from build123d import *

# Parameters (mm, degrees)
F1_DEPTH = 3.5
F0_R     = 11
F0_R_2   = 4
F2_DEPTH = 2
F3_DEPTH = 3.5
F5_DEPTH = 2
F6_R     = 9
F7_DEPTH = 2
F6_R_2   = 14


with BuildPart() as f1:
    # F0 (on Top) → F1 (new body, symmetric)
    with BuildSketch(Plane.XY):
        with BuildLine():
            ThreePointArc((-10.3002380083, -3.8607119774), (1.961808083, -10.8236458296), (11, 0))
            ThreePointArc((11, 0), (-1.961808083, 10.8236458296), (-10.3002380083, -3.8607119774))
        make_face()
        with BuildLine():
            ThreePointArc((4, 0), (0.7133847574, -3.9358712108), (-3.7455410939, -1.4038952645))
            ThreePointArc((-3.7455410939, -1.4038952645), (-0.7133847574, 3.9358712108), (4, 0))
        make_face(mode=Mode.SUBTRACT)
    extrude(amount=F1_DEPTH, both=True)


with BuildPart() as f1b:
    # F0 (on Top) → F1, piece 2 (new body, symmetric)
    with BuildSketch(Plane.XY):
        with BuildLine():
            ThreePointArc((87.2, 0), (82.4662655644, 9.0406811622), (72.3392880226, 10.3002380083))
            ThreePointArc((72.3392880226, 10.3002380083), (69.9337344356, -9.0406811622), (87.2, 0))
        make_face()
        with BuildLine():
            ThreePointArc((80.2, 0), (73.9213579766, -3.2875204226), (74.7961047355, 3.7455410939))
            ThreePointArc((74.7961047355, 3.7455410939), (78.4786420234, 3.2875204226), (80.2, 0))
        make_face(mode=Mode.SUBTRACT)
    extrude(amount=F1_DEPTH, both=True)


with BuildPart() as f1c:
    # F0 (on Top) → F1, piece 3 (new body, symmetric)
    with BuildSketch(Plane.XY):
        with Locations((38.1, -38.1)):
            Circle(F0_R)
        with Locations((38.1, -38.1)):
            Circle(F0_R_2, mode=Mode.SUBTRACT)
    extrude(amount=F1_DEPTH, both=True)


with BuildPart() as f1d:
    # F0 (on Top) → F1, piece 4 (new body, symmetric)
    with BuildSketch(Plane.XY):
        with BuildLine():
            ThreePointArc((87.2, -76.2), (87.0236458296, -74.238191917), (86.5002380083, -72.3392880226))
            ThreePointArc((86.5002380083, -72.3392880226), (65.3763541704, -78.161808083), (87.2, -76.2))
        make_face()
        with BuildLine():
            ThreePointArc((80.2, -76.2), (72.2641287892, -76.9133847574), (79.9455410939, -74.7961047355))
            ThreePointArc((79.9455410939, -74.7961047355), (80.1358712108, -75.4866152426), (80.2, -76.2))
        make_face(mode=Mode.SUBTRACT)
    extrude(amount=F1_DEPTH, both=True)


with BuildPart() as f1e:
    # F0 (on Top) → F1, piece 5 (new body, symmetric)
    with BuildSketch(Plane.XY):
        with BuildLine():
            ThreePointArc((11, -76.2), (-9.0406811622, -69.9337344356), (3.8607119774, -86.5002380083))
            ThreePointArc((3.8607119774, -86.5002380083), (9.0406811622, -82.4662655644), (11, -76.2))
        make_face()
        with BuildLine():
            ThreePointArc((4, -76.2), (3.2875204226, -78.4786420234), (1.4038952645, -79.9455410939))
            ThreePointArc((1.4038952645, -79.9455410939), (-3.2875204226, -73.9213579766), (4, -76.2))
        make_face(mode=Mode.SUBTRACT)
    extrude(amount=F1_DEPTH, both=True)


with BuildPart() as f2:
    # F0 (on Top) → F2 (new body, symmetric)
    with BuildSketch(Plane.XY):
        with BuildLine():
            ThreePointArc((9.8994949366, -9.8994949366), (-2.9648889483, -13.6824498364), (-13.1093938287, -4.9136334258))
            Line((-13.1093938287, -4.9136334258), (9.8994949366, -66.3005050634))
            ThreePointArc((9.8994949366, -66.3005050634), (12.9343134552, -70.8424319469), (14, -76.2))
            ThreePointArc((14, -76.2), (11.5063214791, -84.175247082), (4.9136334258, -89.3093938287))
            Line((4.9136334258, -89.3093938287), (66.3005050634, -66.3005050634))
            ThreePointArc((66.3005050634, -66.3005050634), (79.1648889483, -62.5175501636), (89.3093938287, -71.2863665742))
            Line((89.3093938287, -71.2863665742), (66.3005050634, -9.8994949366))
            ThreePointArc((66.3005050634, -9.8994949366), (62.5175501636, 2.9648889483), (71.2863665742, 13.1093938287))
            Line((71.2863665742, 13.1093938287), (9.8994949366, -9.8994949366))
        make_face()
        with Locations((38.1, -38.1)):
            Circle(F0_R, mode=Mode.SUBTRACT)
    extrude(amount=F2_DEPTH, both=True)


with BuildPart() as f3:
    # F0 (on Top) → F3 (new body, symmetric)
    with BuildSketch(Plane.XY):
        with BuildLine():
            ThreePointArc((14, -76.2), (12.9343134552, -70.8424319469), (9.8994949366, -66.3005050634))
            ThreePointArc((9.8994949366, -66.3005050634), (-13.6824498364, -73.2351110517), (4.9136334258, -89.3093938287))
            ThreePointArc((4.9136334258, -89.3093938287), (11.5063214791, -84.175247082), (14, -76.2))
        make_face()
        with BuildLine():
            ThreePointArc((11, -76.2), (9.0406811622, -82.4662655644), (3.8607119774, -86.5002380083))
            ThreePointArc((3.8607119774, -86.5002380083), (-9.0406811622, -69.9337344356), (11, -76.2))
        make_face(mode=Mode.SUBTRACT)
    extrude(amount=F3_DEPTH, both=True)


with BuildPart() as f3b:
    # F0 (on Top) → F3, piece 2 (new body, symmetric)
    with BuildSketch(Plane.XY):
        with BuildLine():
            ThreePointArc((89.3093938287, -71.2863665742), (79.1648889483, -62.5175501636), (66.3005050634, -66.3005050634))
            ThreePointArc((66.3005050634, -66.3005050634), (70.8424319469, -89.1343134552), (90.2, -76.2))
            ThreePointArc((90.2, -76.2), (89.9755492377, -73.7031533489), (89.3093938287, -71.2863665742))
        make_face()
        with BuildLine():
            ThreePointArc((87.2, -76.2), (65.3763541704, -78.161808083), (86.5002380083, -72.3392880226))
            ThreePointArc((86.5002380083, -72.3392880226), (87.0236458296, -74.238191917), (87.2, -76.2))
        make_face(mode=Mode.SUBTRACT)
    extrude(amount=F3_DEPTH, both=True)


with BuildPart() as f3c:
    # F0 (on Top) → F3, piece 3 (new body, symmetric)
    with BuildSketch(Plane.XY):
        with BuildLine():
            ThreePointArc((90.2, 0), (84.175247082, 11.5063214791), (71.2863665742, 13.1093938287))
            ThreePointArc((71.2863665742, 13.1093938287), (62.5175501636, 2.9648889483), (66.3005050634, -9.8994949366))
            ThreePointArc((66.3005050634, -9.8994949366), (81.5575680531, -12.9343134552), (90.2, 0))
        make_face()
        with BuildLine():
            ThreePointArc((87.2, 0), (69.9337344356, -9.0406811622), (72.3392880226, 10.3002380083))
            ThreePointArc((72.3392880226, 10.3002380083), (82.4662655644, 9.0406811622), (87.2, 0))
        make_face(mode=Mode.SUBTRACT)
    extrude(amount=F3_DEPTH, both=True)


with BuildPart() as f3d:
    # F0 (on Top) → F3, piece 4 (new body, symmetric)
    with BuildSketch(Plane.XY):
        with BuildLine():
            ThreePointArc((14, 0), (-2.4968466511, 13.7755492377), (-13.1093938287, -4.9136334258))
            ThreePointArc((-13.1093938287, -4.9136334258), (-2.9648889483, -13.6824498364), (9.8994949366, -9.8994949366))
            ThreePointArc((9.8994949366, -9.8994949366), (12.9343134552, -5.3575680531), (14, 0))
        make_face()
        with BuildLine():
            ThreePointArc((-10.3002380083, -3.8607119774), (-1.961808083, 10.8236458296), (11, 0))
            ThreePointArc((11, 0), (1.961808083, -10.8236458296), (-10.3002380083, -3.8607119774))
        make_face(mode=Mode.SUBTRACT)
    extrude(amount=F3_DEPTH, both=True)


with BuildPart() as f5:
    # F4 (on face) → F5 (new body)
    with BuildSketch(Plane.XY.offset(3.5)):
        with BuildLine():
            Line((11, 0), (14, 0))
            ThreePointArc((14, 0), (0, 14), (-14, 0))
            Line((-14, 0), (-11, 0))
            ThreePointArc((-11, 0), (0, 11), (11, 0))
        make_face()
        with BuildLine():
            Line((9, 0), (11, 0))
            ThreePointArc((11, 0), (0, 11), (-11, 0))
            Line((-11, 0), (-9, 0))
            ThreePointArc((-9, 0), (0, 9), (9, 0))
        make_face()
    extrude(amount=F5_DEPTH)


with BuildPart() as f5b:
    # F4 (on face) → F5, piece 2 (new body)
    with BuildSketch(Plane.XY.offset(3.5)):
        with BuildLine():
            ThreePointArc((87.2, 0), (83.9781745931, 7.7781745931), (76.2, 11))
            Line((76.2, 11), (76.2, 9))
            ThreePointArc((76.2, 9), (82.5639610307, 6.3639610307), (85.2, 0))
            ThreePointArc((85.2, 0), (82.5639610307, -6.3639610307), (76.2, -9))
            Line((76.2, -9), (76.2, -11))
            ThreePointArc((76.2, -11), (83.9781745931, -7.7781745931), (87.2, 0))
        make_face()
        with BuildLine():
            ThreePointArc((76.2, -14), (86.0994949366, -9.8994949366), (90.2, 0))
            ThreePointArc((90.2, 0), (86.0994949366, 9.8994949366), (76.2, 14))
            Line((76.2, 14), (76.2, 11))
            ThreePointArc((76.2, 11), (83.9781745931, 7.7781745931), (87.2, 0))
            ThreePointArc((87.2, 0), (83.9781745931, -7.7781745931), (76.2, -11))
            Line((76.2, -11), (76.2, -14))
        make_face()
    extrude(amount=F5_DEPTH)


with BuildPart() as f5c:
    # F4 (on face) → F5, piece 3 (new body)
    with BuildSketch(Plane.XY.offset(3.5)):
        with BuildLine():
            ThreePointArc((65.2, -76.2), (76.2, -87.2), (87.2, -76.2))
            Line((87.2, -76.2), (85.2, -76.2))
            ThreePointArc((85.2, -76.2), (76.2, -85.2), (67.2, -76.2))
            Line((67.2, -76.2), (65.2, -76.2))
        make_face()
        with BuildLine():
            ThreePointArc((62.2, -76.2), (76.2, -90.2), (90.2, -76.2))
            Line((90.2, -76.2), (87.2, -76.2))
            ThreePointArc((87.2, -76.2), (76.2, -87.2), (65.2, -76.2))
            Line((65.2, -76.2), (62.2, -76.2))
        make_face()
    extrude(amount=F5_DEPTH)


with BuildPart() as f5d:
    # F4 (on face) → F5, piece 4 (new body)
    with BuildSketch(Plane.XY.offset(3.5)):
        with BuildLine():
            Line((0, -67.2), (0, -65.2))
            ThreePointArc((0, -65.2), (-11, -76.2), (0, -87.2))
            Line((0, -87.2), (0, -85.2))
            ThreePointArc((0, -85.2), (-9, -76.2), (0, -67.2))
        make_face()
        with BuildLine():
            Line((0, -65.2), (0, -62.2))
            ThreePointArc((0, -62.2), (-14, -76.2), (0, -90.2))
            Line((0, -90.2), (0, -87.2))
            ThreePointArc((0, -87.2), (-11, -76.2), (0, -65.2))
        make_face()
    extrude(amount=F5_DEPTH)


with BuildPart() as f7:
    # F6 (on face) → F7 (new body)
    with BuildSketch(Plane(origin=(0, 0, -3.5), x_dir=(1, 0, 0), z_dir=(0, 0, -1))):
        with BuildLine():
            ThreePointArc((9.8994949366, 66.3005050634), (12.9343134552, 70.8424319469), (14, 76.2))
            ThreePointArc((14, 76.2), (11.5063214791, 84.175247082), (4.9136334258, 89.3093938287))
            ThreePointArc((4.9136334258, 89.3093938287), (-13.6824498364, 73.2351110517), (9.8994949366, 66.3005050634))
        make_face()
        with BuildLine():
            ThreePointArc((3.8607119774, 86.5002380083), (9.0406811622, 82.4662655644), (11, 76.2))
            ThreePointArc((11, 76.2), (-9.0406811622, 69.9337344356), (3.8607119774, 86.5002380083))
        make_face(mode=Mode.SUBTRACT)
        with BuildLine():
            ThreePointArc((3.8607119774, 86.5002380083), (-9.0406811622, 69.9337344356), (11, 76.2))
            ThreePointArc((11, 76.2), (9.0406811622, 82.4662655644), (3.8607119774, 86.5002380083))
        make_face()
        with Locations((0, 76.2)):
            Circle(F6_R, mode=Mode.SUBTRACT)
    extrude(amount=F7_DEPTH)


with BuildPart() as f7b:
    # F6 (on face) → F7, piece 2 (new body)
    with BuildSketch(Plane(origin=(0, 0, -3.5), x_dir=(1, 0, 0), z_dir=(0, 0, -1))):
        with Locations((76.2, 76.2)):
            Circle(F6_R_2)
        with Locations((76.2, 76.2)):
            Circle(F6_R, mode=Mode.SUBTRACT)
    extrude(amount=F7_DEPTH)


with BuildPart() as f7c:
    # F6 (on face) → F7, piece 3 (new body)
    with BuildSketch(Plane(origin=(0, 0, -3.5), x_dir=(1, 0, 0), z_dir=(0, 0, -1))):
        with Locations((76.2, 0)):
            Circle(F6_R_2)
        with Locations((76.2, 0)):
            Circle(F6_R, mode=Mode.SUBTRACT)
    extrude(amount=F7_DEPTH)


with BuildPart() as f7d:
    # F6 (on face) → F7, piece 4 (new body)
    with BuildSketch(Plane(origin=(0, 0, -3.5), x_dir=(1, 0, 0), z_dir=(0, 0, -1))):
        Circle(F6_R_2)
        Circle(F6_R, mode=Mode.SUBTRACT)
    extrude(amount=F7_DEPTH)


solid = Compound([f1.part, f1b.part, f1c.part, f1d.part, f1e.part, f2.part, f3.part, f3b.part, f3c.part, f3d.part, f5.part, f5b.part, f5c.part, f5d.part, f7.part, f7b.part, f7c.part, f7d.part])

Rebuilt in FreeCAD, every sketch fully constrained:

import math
import FreeCAD as App
import Part
import Sketcher
from FreeCAD import Vector

doc = App.newDocument("Part")
params = doc.addObject("Spreadsheet::Sheet", "Params")
for row, (alias, value) in enumerate([
    ("sketch1_radius", "11 mm"),
    ("sketch1_radius2", "4 mm"),
    ("pad1_length", "7 mm"),
    ("sketch2_radius", "11 mm"),
    ("sketch2_radius2", "4 mm"),
    ("pad2_length", "7 mm"),
    ("sketch3_diameter", "22 mm"),
    ("sketch3_diameter2", "8 mm"),
    ("pad3_length", "7 mm"),
    ("sketch4_radius", "11 mm"),
    ("sketch4_radius2", "4 mm"),
    ("pad4_length", "7 mm"),
    ("sketch5_radius", "11 mm"),
    ("sketch5_radius2", "4 mm"),
    ("pad5_length", "7 mm"),
    ("sketch6_diameter", "22 mm"),
    ("sketch6_radius", "14 mm"),
    ("pad6_length", "4 mm"),
    ("sketch7_radius", "14 mm"),
    ("sketch7_radius2", "11 mm"),
    ("pad7_length", "7 mm"),
    ("sketch8_radius", "14 mm"),
    ("sketch8_radius2", "11 mm"),
    ("pad8_length", "7 mm"),
    ("sketch9_radius", "14 mm"),
    ("sketch9_radius2", "11 mm"),
    ("pad9_length", "7 mm"),
    ("sketch10_radius", "14 mm"),
    ("sketch10_radius2", "11 mm"),
    ("pad10_length", "7 mm"),
    ("sketch11_radius", "14 mm"),
    ("sketch11_radius2", "9 mm"),
    ("pad11_length", "2 mm"),
    ("sketch12_radius", "9 mm"),
    ("sketch12_radius2", "14 mm"),
    ("pad12_length", "2 mm"),
    ("sketch13_radius", "9 mm"),
    ("sketch13_radius2", "14 mm"),
    ("pad13_length", "2 mm"),
    ("sketch14_radius", "14 mm"),
    ("sketch14_radius2", "9 mm"),
    ("pad14_length", "2 mm"),
    ("sketch15_diameter", "18 mm"),
    ("sketch15_radius", "14 mm"),
    ("pad15_length", "2 mm"),
    ("sketch16_diameter", "28 mm"),
    ("sketch16_diameter2", "18 mm"),
    ("pad16_length", "2 mm"),
    ("sketch17_diameter", "28 mm"),
    ("sketch17_diameter2", "18 mm"),
    ("pad17_length", "2 mm"),
    ("sketch18_diameter", "28 mm"),
    ("sketch18_diameter2", "18 mm"),
    ("pad18_length", "2 mm"),
], start=1):
    params.set(f"A{row}", alias)
    params.set(f"B{row}", "=" + value)
    params.setAlias(f"B{row}", alias)

body = doc.addObject("PartDesign::Body", "Body")

# Sketch on XY plane
sketch1 = body.newObject("Sketcher::SketchObject", "Sketch")
sketch1.AttachmentSupport = (doc.getObject("XY_Plane"), [""])
sketch1.MapMode = "FlatFace"
sketch1.addGeometry([
    Part.ArcOfCircle(Part.Circle(Vector(0, 0, 0), Vector(0, 0, 1), 11), math.radians(-159), math.radians(0)),
    Part.ArcOfCircle(Part.Circle(Vector(0, 0, 0), Vector(0, 0, 1), 11), math.radians(0), math.radians(201)),
    Part.ArcOfCircle(Part.Circle(Vector(0, 0, 0), Vector(0, 0, 1), 4), math.radians(0), math.radians(201)),
    Part.ArcOfCircle(Part.Circle(Vector(0, 0, 0), Vector(0, 0, 1), 4), math.radians(-159), math.radians(0)),
], False)
sketch1.addConstraint([
    Sketcher.Constraint("Tangent", 0, 1, 1, 2),
    Sketcher.Constraint("Coincident", 1, 1, 0, 2),
    Sketcher.Constraint("Tangent", 2, 1, 3, 2),
    Sketcher.Constraint("Coincident", 3, 1, 2, 2),
    Sketcher.Constraint("Coincident", 0, 3, -1, 1),
    Sketcher.Constraint("Coincident", 2, 3, -1, 1),
    Sketcher.Constraint("PointOnObject", 1, 1, -1),
    Sketcher.Constraint("PointOnObject", 2, 1, -1),
    Sketcher.Constraint("Radius", 0, 11.0),
    Sketcher.Constraint("Radius", 2, 4.0),
    Sketcher.Constraint("DistanceX", 0, 1, -1, 1, 10.300238),
    Sketcher.Constraint("DistanceX", 3, 1, -1, 1, 3.745541),
])
sketch1.setExpression("Constraints[8]", "Params.sketch1_radius")
sketch1.setExpression("Constraints[9]", "Params.sketch1_radius2")
pad1 = body.newObject("PartDesign::Pad", "Pad")
pad1.Profile = sketch1
pad1.setExpression("Length", "Params.pad1_length")
pad1.Midplane = True
body2 = doc.addObject("PartDesign::Body", "Body001")

# Sketch on XY plane
sketch2 = body2.newObject("Sketcher::SketchObject", "Sketch001")
sketch2.AttachmentSupport = (doc.getObject("XY_Plane001"), [""])
sketch2.MapMode = "FlatFace"
sketch2.addGeometry([
    Part.ArcOfCircle(Part.Circle(Vector(76.2, 0, 0), Vector(0, 0, 1), 11), math.radians(0), math.radians(111)),
    Part.ArcOfCircle(Part.Circle(Vector(76.2, 0, 0), Vector(0, 0, 1), 11), math.radians(111), math.radians(360)),
    Part.ArcOfCircle(Part.Circle(Vector(76.2, 0, 0), Vector(0, 0, 1), 4), math.radians(0), math.radians(111)),
    Part.ArcOfCircle(Part.Circle(Vector(76.2, 0, 0), Vector(0, 0, 1), 4), math.radians(111), math.radians(360)),
], False)
sketch2.addConstraint([
    Sketcher.Constraint("Tangent", 0, 1, 1, 2),
    Sketcher.Constraint("Coincident", 1, 1, 0, 2),
    Sketcher.Constraint("Tangent", 2, 1, 3, 2),
    Sketcher.Constraint("Coincident", 3, 1, 2, 2),
    Sketcher.Constraint("Coincident", 2, 3, 0, 3),
    Sketcher.Constraint("PointOnObject", 0, 3, -1),
    Sketcher.Constraint("PointOnObject", 0, 1, -1),
    Sketcher.Constraint("PointOnObject", 2, 1, -1),
    Sketcher.Constraint("Radius", 0, 11.0),
    Sketcher.Constraint("Radius", 2, 4.0),
    Sketcher.Constraint("DistanceX", -1, 1, 0, 3, 76.2),
    Sketcher.Constraint("DistanceX", -1, 1, 1, 1, 72.339288),
    Sketcher.Constraint("DistanceY", -1, 1, 3, 1, 3.745541),
])
sketch2.setExpression("Constraints[8]", "Params.sketch2_radius")
sketch2.setExpression("Constraints[9]", "Params.sketch2_radius2")
pad2 = body2.newObject("PartDesign::Pad", "Pad001")
pad2.Profile = sketch2
pad2.setExpression("Length", "Params.pad2_length")
pad2.Midplane = True
body3 = doc.addObject("PartDesign::Body", "Body002")

# Sketch on XY plane
sketch3 = body3.newObject("Sketcher::SketchObject", "Sketch002")
sketch3.AttachmentSupport = (doc.getObject("XY_Plane002"), [""])
sketch3.MapMode = "FlatFace"
sketch3.addGeometry([
    Part.Circle(Vector(38.1, -38.1, 0), Vector(0, 0, 1), 11),
    Part.Circle(Vector(38.1, -38.1, 0), Vector(0, 0, 1), 4),
], False)
sketch3.addConstraint([
    Sketcher.Constraint("Coincident", 1, 3, 0, 3),
    Sketcher.Constraint("Diameter", 0, 22.0),
    Sketcher.Constraint("Diameter", 1, 8.0),
    Sketcher.Constraint("DistanceX", -1, 1, 0, 3, 38.1),
    Sketcher.Constraint("DistanceY", 0, 3, -1, 1, 38.1),
])
sketch3.setExpression("Constraints[1]", "Params.sketch3_diameter")
sketch3.setExpression("Constraints[2]", "Params.sketch3_diameter2")
pad3 = body3.newObject("PartDesign::Pad", "Pad002")
pad3.Profile = sketch3
pad3.setExpression("Length", "Params.pad3_length")
pad3.Midplane = True
body4 = doc.addObject("PartDesign::Body", "Body003")

# Sketch on XY plane
sketch4 = body4.newObject("Sketcher::SketchObject", "Sketch003")
sketch4.AttachmentSupport = (doc.getObject("XY_Plane003"), [""])
sketch4.MapMode = "FlatFace"
sketch4.addGeometry([
    Part.ArcOfCircle(Part.Circle(Vector(76.2, -76.2, 0), Vector(0, 0, 1), 11), math.radians(0), math.radians(21)),
    Part.ArcOfCircle(Part.Circle(Vector(76.2, -76.2, 0), Vector(0, 0, 1), 11), math.radians(21), math.radians(360)),
    Part.ArcOfCircle(Part.Circle(Vector(76.2, -76.2, 0), Vector(0, 0, 1), 4), math.radians(0), math.radians(21)),
    Part.ArcOfCircle(Part.Circle(Vector(76.2, -76.2, 0), Vector(0, 0, 1), 4), math.radians(21), math.radians(360)),
], False)
sketch4.addConstraint([
    Sketcher.Constraint("Tangent", 0, 1, 1, 2),
    Sketcher.Constraint("Coincident", 1, 1, 0, 2),
    Sketcher.Constraint("Tangent", 2, 1, 3, 2),
    Sketcher.Constraint("Coincident", 3, 1, 2, 2),
    Sketcher.Constraint("Coincident", 2, 3, 0, 3),
    Sketcher.Constraint("Horizontal", 3, 3, 0, 1),
    Sketcher.Constraint("Horizontal", 0, 1, 2, 1),
    Sketcher.Constraint("Radius", 0, 11.0),
    Sketcher.Constraint("Radius", 2, 4.0),
    Sketcher.Constraint("DistanceX", -1, 1, 0, 3, 76.2),
    Sketcher.Constraint("DistanceY", 0, 3, -1, 1, 76.2),
    Sketcher.Constraint("DistanceX", -1, 1, 1, 1, 86.500238),
    Sketcher.Constraint("DistanceX", -1, 1, 3, 1, 79.945541),
])
sketch4.setExpression("Constraints[7]", "Params.sketch4_radius")
sketch4.setExpression("Constraints[8]", "Params.sketch4_radius2")
pad4 = body4.newObject("PartDesign::Pad", "Pad003")
pad4.Profile = sketch4
pad4.setExpression("Length", "Params.pad4_length")
pad4.Midplane = True
body5 = doc.addObject("PartDesign::Body", "Body004")

# Sketch on XY plane
sketch5 = body5.newObject("Sketcher::SketchObject", "Sketch004")
sketch5.AttachmentSupport = (doc.getObject("XY_Plane004"), [""])
sketch5.MapMode = "FlatFace"
sketch5.addGeometry([
    Part.ArcOfCircle(Part.Circle(Vector(0, -76.2, 0), Vector(0, 0, 1), 11), math.radians(0), math.radians(291)),
    Part.ArcOfCircle(Part.Circle(Vector(0, -76.2, 0), Vector(0, 0, 1), 11), math.radians(-69), math.radians(0)),
    Part.ArcOfCircle(Part.Circle(Vector(0, -76.2, 0), Vector(0, 0, 1), 4), math.radians(0), math.radians(291)),
    Part.ArcOfCircle(Part.Circle(Vector(0, -76.2, 0), Vector(0, 0, 1), 4), math.radians(-69), math.radians(0)),
], False)
sketch5.addConstraint([
    Sketcher.Constraint("Tangent", 0, 1, 1, 2),
    Sketcher.Constraint("Coincident", 1, 1, 0, 2),
    Sketcher.Constraint("Tangent", 2, 1, 3, 2),
    Sketcher.Constraint("Coincident", 3, 1, 2, 2),
    Sketcher.Constraint("Coincident", 2, 3, 0, 3),
    Sketcher.Constraint("PointOnObject", 0, 3, -2),
    Sketcher.Constraint("Horizontal", 3, 3, 0, 1),
    Sketcher.Constraint("Horizontal", 0, 1, 2, 1),
    Sketcher.Constraint("Radius", 0, 11.0),
    Sketcher.Constraint("Radius", 2, 4.0),
    Sketcher.Constraint("DistanceY", 0, 3, -1, 1, 76.2),
    Sketcher.Constraint("DistanceX", -1, 1, 1, 1, 3.860712),
    Sketcher.Constraint("DistanceY", 3, 1, -1, 1, 79.945541),
])
sketch5.setExpression("Constraints[8]", "Params.sketch5_radius")
sketch5.setExpression("Constraints[9]", "Params.sketch5_radius2")
pad5 = body5.newObject("PartDesign::Pad", "Pad004")
pad5.Profile = sketch5
pad5.setExpression("Length", "Params.pad5_length")
pad5.Midplane = True
body6 = doc.addObject("PartDesign::Body", "Body005")

# Sketch on XY plane
sketch6 = body6.newObject("Sketcher::SketchObject", "Sketch005")
sketch6.AttachmentSupport = (doc.getObject("XY_Plane005"), [""])
sketch6.MapMode = "FlatFace"
sketch6.addGeometry([
    Part.ArcOfCircle(Part.Circle(Vector(0, 0, 0), Vector(0, 0, 1), 14), math.radians(-159), math.radians(-45)),  # 0
    Part.LineSegment(Vector(-13, -5, 0), Vector(10, -66, 0)),  # 1
    Part.ArcOfCircle(Part.Circle(Vector(0, -76, 0), Vector(0, 0, 1), 14), math.radians(0), math.radians(45)),  # 2
    Part.ArcOfCircle(Part.Circle(Vector(0, -76, 0), Vector(0, 0, 1), 14), math.radians(-69), math.radians(0)),  # 3
    Part.LineSegment(Vector(5, -89, 0), Vector(66, -66, 0)),  # 4
    Part.ArcOfCircle(Part.Circle(Vector(76, -76, 0), Vector(0, 0, 1), 14), math.radians(21), math.radians(135)),  # 5
    Part.LineSegment(Vector(89, -71, 0), Vector(66, -10, 0)),  # 6
    Part.ArcOfCircle(Part.Circle(Vector(76, 0, 0), Vector(0, 0, 1), 14), math.radians(111), math.radians(225)),  # 7
    Part.LineSegment(Vector(71, 13, 0), Vector(10, -10, 0)),  # 8
    Part.Circle(Vector(38, -38, 0), Vector(0, 0, 1), 11),  # 9
], False)
sketch6.addConstraint([
    Sketcher.Constraint("Tangent", 0, 1, 1, 1),
    Sketcher.Constraint("Coincident", 1, 2, 2, 2),
    Sketcher.Constraint("Tangent", 2, 1, 3, 2),
    Sketcher.Constraint("Tangent", 3, 1, 4, 1),
    Sketcher.Constraint("Coincident", 4, 2, 5, 2),
    Sketcher.Constraint("Tangent", 5, 1, 6, 1),
    Sketcher.Constraint("Coincident", 6, 2, 7, 2),
    Sketcher.Constraint("Tangent", 7, 1, 8, 1),
    Sketcher.Constraint("Coincident", 8, 2, 0, 2),
    Sketcher.Constraint("Coincident", 0, 3, -1, 1),
    Sketcher.Constraint("Equal", 0, 2),
    Sketcher.Constraint("Equal", 2, 3),
    Sketcher.Constraint("Equal", 3, 5),
    Sketcher.Constraint("Equal", 5, 7),
    Sketcher.Constraint("PointOnObject", 2, 3, -2),
    Sketcher.Constraint("PointOnObject", 7, 3, -1),
    Sketcher.Constraint("Perpendicular", 1, 4),
    Sketcher.Constraint("Perpendicular", 4, 6),
    Sketcher.Constraint("Perpendicular", 6, 8),
    Sketcher.Constraint("Horizontal", 3, 3, 5, 3),
    Sketcher.Constraint("Horizontal", 5, 3, 2, 1),
    Sketcher.Constraint("Horizontal", 1, 2, 4, 2),
    Sketcher.Constraint("Horizontal", 6, 2, 8, 2),
    Sketcher.Constraint("Equal", 1, 4),
    Sketcher.Constraint("Diameter", 9, 22.0),
    Sketcher.Constraint("Radius", 0, 14.0),
    Sketcher.Constraint("DistanceY", 2, 3, -1, 1, 76.2),
    Sketcher.Constraint("DistanceX", -1, 1, 9, 3, 38.1),
    Sketcher.Constraint("DistanceY", 9, 3, -1, 1, 38.1),
])
sketch6.setExpression("Constraints[24]", "Params.sketch6_diameter")
sketch6.setExpression("Constraints[25]", "Params.sketch6_radius")
pad6 = body6.newObject("PartDesign::Pad", "Pad005")
pad6.Profile = sketch6
pad6.setExpression("Length", "Params.pad6_length")
pad6.Midplane = True
body7 = doc.addObject("PartDesign::Body", "Body006")

# Sketch on XY plane
sketch7 = body7.newObject("Sketcher::SketchObject", "Sketch006")
sketch7.AttachmentSupport = (doc.getObject("XY_Plane006"), [""])
sketch7.MapMode = "FlatFace"
sketch7.addGeometry([
    Part.ArcOfCircle(Part.Circle(Vector(0, -76, 0), Vector(0, 0, 1), 14), math.radians(0), math.radians(45)),  # 0
    Part.ArcOfCircle(Part.Circle(Vector(0, -76, 0), Vector(0, 0, 1), 14), math.radians(45), math.radians(291)),  # 1
    Part.ArcOfCircle(Part.Circle(Vector(0, -76, 0), Vector(0, 0, 1), 14), math.radians(-69), math.radians(0)),  # 2
    Part.ArcOfCircle(Part.Circle(Vector(0, -76, 0), Vector(0, 0, 1), 11), math.radians(0), math.radians(291)),  # 3
    Part.ArcOfCircle(Part.Circle(Vector(0, -76, 0), Vector(0, 0, 1), 11), math.radians(-69), math.radians(0)),  # 4
], False)
sketch7.addConstraint([
    Sketcher.Constraint("Tangent", 0, 2, 1, 1),
    Sketcher.Constraint("Tangent", 1, 2, 2, 1),
    Sketcher.Constraint("Tangent", 2, 2, 0, 1),
    Sketcher.Constraint("Tangent", 3, 1, 4, 2),
    Sketcher.Constraint("Coincident", 4, 1, 3, 2),
    Sketcher.Constraint("Coincident", 3, 3, 0, 3),
    Sketcher.Constraint("PointOnObject", 0, 3, -2),
    Sketcher.Constraint("Horizontal", 4, 3, 2, 2),
    Sketcher.Constraint("Horizontal", 2, 2, 3, 1),
    Sketcher.Constraint("Radius", 0, 14.0),
    Sketcher.Constraint("Radius", 3, 11.0),
    Sketcher.Constraint("DistanceY", 0, 3, -1, 1, 76.2),
    Sketcher.Constraint("DistanceX", -1, 1, 4, 1, 3.860712),
    Sketcher.Constraint("DistanceX", 4, 1, 1, 2, 1.052921),
    Sketcher.Constraint("DistanceX", -1, 1, 0, 2, 9.899495),
])
sketch7.setExpression("Constraints[9]", "Params.sketch7_radius")
sketch7.setExpression("Constraints[10]", "Params.sketch7_radius2")
pad7 = body7.newObject("PartDesign::Pad", "Pad006")
pad7.Profile = sketch7
pad7.setExpression("Length", "Params.pad7_length")
pad7.Midplane = True
body8 = doc.addObject("PartDesign::Body", "Body007")

# Sketch on XY plane
sketch8 = body8.newObject("Sketcher::SketchObject", "Sketch007")
sketch8.AttachmentSupport = (doc.getObject("XY_Plane007"), [""])
sketch8.MapMode = "FlatFace"
sketch8.addGeometry([
    Part.ArcOfCircle(Part.Circle(Vector(76.2, -76.2, 0), Vector(0, 0, 1), 14), math.radians(21), math.radians(135)),  # 0
    Part.ArcOfCircle(Part.Circle(Vector(76.2, -76.2, 0), Vector(0, 0, 1), 14), math.radians(135), math.radians(360)),  # 1
    Part.ArcOfCircle(Part.Circle(Vector(76.2, -76.2, 0), Vector(0, 0, 1), 14), math.radians(0), math.radians(21)),  # 2
    Part.ArcOfCircle(Part.Circle(Vector(76.2, -76.2, 0), Vector(0, 0, 1), 11), math.radians(0), math.radians(21)),  # 3
    Part.ArcOfCircle(Part.Circle(Vector(76.2, -76.2, 0), Vector(0, 0, 1), 11), math.radians(21), math.radians(360)),  # 4
], False)
sketch8.addConstraint([
    Sketcher.Constraint("Tangent", 0, 2, 1, 1),
    Sketcher.Constraint("Tangent", 1, 2, 2, 1),
    Sketcher.Constraint("Tangent", 2, 2, 0, 1),
    Sketcher.Constraint("Tangent", 3, 1, 4, 2),
    Sketcher.Constraint("Coincident", 4, 1, 3, 2),
    Sketcher.Constraint("Coincident", 3, 3, 0, 3),
    Sketcher.Constraint("Horizontal", 4, 3, 1, 2),
    Sketcher.Constraint("Horizontal", 1, 2, 3, 1),
    Sketcher.Constraint("Radius", 0, 14.0),
    Sketcher.Constraint("Radius", 3, 11.0),
    Sketcher.Constraint("DistanceX", -1, 1, 0, 3, 76.2),
    Sketcher.Constraint("DistanceY", 0, 3, -1, 1, 76.2),
    Sketcher.Constraint("DistanceX", -1, 1, 4, 1, 86.500238),
    Sketcher.Constraint("DistanceY", 4, 1, 2, 2, 1.052921),
    Sketcher.Constraint("DistanceX", -1, 1, 0, 2, 66.300505),
])
sketch8.setExpression("Constraints[8]", "Params.sketch8_radius")
sketch8.setExpression("Constraints[9]", "Params.sketch8_radius2")
pad8 = body8.newObject("PartDesign::Pad", "Pad007")
pad8.Profile = sketch8
pad8.setExpression("Length", "Params.pad8_length")
pad8.Midplane = True
body9 = doc.addObject("PartDesign::Body", "Body008")

# Sketch on XY plane
sketch9 = body9.newObject("Sketcher::SketchObject", "Sketch008")
sketch9.AttachmentSupport = (doc.getObject("XY_Plane008"), [""])
sketch9.MapMode = "FlatFace"
sketch9.addGeometry([
    Part.ArcOfCircle(Part.Circle(Vector(76, 0, 0), Vector(0, 0, 1), 14), math.radians(0), math.radians(111)),  # 0
    Part.ArcOfCircle(Part.Circle(Vector(76, 0, 0), Vector(0, 0, 1), 14), math.radians(111), math.radians(225)),  # 1
    Part.ArcOfCircle(Part.Circle(Vector(76, 0, 0), Vector(0, 0, 1), 14), math.radians(-135), math.radians(0)),  # 2
    Part.ArcOfCircle(Part.Circle(Vector(76, 0, 0), Vector(0, 0, 1), 11), math.radians(0), math.radians(111)),  # 3
    Part.ArcOfCircle(Part.Circle(Vector(76, 0, 0), Vector(0, 0, 1), 11), math.radians(111), math.radians(360)),  # 4
], False)
sketch9.addConstraint([
    Sketcher.Constraint("Tangent", 0, 2, 1, 1),
    Sketcher.Constraint("Tangent", 1, 2, 2, 1),
    Sketcher.Constraint("Tangent", 2, 2, 0, 1),
    Sketcher.Constraint("Tangent", 3, 1, 4, 2),
    Sketcher.Constraint("Coincident", 4, 1, 3, 2),
    Sketcher.Constraint("Coincident", 3, 3, 0, 3),
    Sketcher.Constraint("PointOnObject", 0, 3, -1),
    Sketcher.Constraint("PointOnObject", 2, 2, -1),
    Sketcher.Constraint("PointOnObject", 3, 1, -1),
    Sketcher.Constraint("Radius", 0, 14.0),
    Sketcher.Constraint("Radius", 3, 11.0),
    Sketcher.Constraint("DistanceX", -1, 1, 0, 3, 76.2),
    Sketcher.Constraint("DistanceX", -1, 1, 4, 1, 72.339288),
    Sketcher.Constraint("DistanceX", 0, 2, 4, 1, 1.052921),
    Sketcher.Constraint("DistanceX", -1, 1, 1, 2, 66.300505),
])
sketch9.setExpression("Constraints[9]", "Params.sketch9_radius")
sketch9.setExpression("Constraints[10]", "Params.sketch9_radius2")
pad9 = body9.newObject("PartDesign::Pad", "Pad008")
pad9.Profile = sketch9
pad9.setExpression("Length", "Params.pad9_length")
pad9.Midplane = True
body10 = doc.addObject("PartDesign::Body", "Body009")

# Sketch on XY plane
sketch10 = body10.newObject("Sketcher::SketchObject", "Sketch009")
sketch10.AttachmentSupport = (doc.getObject("XY_Plane009"), [""])
sketch10.MapMode = "FlatFace"
sketch10.addGeometry([
    Part.ArcOfCircle(Part.Circle(Vector(0, 0, 0), Vector(0, 0, 1), 14), math.radians(0), math.radians(201)),  # 0
    Part.ArcOfCircle(Part.Circle(Vector(0, 0, 0), Vector(0, 0, 1), 14), math.radians(-159), math.radians(-45)),  # 1
    Part.ArcOfCircle(Part.Circle(Vector(0, 0, 0), Vector(0, 0, 1), 14), math.radians(-45), math.radians(0)),  # 2
    Part.ArcOfCircle(Part.Circle(Vector(0, 0, 0), Vector(0, 0, 1), 11), math.radians(-159), math.radians(0)),  # 3
    Part.ArcOfCircle(Part.Circle(Vector(0, 0, 0), Vector(0, 0, 1), 11), math.radians(0), math.radians(201)),  # 4
], False)
sketch10.addConstraint([
    Sketcher.Constraint("Tangent", 0, 2, 1, 1),
    Sketcher.Constraint("Tangent", 1, 2, 2, 1),
    Sketcher.Constraint("Tangent", 2, 2, 0, 1),
    Sketcher.Constraint("Tangent", 3, 1, 4, 2),
    Sketcher.Constraint("Coincident", 4, 1, 3, 2),
    Sketcher.Constraint("Coincident", 0, 3, -1, 1),
    Sketcher.Constraint("Coincident", 3, 3, -1, 1),
    Sketcher.Constraint("PointOnObject", 2, 2, -1),
    Sketcher.Constraint("PointOnObject", 4, 1, -1),
    Sketcher.Constraint("Radius", 0, 14.0),
    Sketcher.Constraint("Radius", 3, 11.0),
    Sketcher.Constraint("DistanceX", 3, 1, -1, 1, 10.300238),
    Sketcher.Constraint("DistanceY", 0, 2, 3, 1, 1.052921),
    Sketcher.Constraint("DistanceX", -1, 1, 1, 2, 9.899495),
])
sketch10.setExpression("Constraints[9]", "Params.sketch10_radius")
sketch10.setExpression("Constraints[10]", "Params.sketch10_radius2")
pad10 = body10.newObject("PartDesign::Pad", "Pad009")
pad10.Profile = sketch10
pad10.setExpression("Length", "Params.pad10_length")
pad10.Midplane = True
body11 = doc.addObject("PartDesign::Body", "Body010")

# Sketch on XY plane
sketch11 = body11.newObject("Sketcher::SketchObject", "Sketch010")
sketch11.AttachmentSupport = (doc.getObject("XY_Plane010"), [""])
sketch11.MapMode = "FlatFace"
sketch11.AttachmentOffset = App.Placement(Vector(0, 0, 3.5), App.Rotation())
sketch11.addGeometry([
    Part.ArcOfCircle(Part.Circle(Vector(0, 0, 0), Vector(0, 0, 1), 14), math.radians(0), math.radians(180)),
    Part.LineSegment(Vector(-14, 0, 0), Vector(-9, 0, 0)),
    Part.ArcOfCircle(Part.Circle(Vector(0, 0, 0), Vector(0, 0, 1), 9), math.radians(0), math.radians(180)),
    Part.LineSegment(Vector(9, 0, 0), Vector(14, 0, 0)),
], False)
sketch11.addConstraint([
    Sketcher.Constraint("Coincident", 0, 2, 1, 1),
    Sketcher.Constraint("Coincident", 1, 2, 2, 2),
    Sketcher.Constraint("Coincident", 2, 1, 3, 1),
    Sketcher.Constraint("Coincident", 3, 2, 0, 1),
    Sketcher.Constraint("Horizontal", 1),
    Sketcher.Constraint("Horizontal", 3),
    Sketcher.Constraint("Coincident", 0, 3, -1, 1),
    Sketcher.Constraint("Coincident", 2, 3, -1, 1),
    Sketcher.Constraint("PointOnObject", 0, 2, -1),
    Sketcher.Constraint("PointOnObject", 2, 1, -1),
    Sketcher.Constraint("Radius", 0, 14.0),
    Sketcher.Constraint("Radius", 2, 9.0),
])
sketch11.setExpression("Constraints[10]", "Params.sketch11_radius")
sketch11.setExpression("Constraints[11]", "Params.sketch11_radius2")
pad11 = body11.newObject("PartDesign::Pad", "Pad010")
pad11.Profile = sketch11
pad11.setExpression("Length", "Params.pad11_length")
body12 = doc.addObject("PartDesign::Body", "Body011")

# Sketch on XY plane
sketch12 = body12.newObject("Sketcher::SketchObject", "Sketch011")
sketch12.AttachmentSupport = (doc.getObject("XY_Plane011"), [""])
sketch12.MapMode = "FlatFace"
sketch12.AttachmentOffset = App.Placement(Vector(0, 0, 3.5), App.Rotation())
sketch12.addGeometry([
    Part.ArcOfCircle(Part.Circle(Vector(76, 0, 0), Vector(0, 0, 1), 9), math.radians(0), math.radians(90)),  # 0
    Part.ArcOfCircle(Part.Circle(Vector(76, 0, 0), Vector(0, 0, 1), 9), math.radians(-90), math.radians(0)),  # 1
    Part.LineSegment(Vector(76, -9, 0), Vector(76, -14, 0)),  # 2
    Part.ArcOfCircle(Part.Circle(Vector(76, 0, 0), Vector(0, 0, 1), 14), math.radians(-90), math.radians(0)),  # 3
    Part.ArcOfCircle(Part.Circle(Vector(76, 0, 0), Vector(0, 0, 1), 14), math.radians(0), math.radians(90)),  # 4
    Part.LineSegment(Vector(76, 14, 0), Vector(76, 9, 0)),  # 5
], False)
sketch12.addConstraint([
    Sketcher.Constraint("Tangent", 0, 1, 1, 2),
    Sketcher.Constraint("Coincident", 1, 1, 2, 1),
    Sketcher.Constraint("Coincident", 2, 2, 3, 1),
    Sketcher.Constraint("Tangent", 3, 2, 4, 1),
    Sketcher.Constraint("Coincident", 4, 2, 5, 1),
    Sketcher.Constraint("Coincident", 5, 2, 0, 2),
    Sketcher.Constraint("Vertical", 2),
    Sketcher.Constraint("Vertical", 5),
    Sketcher.Constraint("Coincident", 3, 3, 0, 3),
    Sketcher.Constraint("Equal", 0, 1),
    Sketcher.Constraint("Equal", 3, 4),
    Sketcher.Constraint("Symmetric", 2, 2, 4, 2, -1),
    Sketcher.Constraint("PointOnObject", 0, 1, -1),
    Sketcher.Constraint("PointOnObject", 3, 2, -1),
    Sketcher.Constraint("Vertical", 4, 3, 1, 1),
    Sketcher.Constraint("Radius", 0, 9.0),
    Sketcher.Constraint("Radius", 3, 14.0),
    Sketcher.Constraint("DistanceX", -1, 1, 0, 3, 76.2),
])
sketch12.setExpression("Constraints[15]", "Params.sketch12_radius")
sketch12.setExpression("Constraints[16]", "Params.sketch12_radius2")
pad12 = body12.newObject("PartDesign::Pad", "Pad011")
pad12.Profile = sketch12
pad12.setExpression("Length", "Params.pad12_length")
body13 = doc.addObject("PartDesign::Body", "Body012")

# Sketch on XY plane
sketch13 = body13.newObject("Sketcher::SketchObject", "Sketch012")
sketch13.AttachmentSupport = (doc.getObject("XY_Plane012"), [""])
sketch13.MapMode = "FlatFace"
sketch13.AttachmentOffset = App.Placement(Vector(0, 0, 3.5), App.Rotation())
sketch13.addGeometry([
    Part.ArcOfCircle(Part.Circle(Vector(76, -76, 0), Vector(0, 0, 1), 9), math.radians(180), math.radians(360)),
    Part.LineSegment(Vector(67, -76, 0), Vector(62, -76, 0)),
    Part.ArcOfCircle(Part.Circle(Vector(76, -76, 0), Vector(0, 0, 1), 14), math.radians(180), math.radians(360)),
    Part.LineSegment(Vector(90, -76, 0), Vector(85, -76, 0)),
], False)
sketch13.addConstraint([
    Sketcher.Constraint("Coincident", 0, 1, 1, 1),
    Sketcher.Constraint("Coincident", 1, 2, 2, 1),
    Sketcher.Constraint("Coincident", 2, 2, 3, 1),
    Sketcher.Constraint("Coincident", 3, 2, 0, 2),
    Sketcher.Constraint("Horizontal", 1),
    Sketcher.Constraint("Horizontal", 3),
    Sketcher.Constraint("Coincident", 2, 3, 0, 3),
    Sketcher.Constraint("Horizontal", 2, 3, 0, 1),
    Sketcher.Constraint("Horizontal", 1, 2, 2, 2),
    Sketcher.Constraint("Radius", 0, 9.0),
    Sketcher.Constraint("Radius", 2, 14.0),
    Sketcher.Constraint("DistanceX", -1, 1, 0, 3, 76.2),
    Sketcher.Constraint("DistanceY", 0, 3, -1, 1, 76.2),
])
sketch13.setExpression("Constraints[9]", "Params.sketch13_radius")
sketch13.setExpression("Constraints[10]", "Params.sketch13_radius2")
pad13 = body13.newObject("PartDesign::Pad", "Pad012")
pad13.Profile = sketch13
pad13.setExpression("Length", "Params.pad13_length")
body14 = doc.addObject("PartDesign::Body", "Body013")

# Sketch on XY plane
sketch14 = body14.newObject("Sketcher::SketchObject", "Sketch013")
sketch14.AttachmentSupport = (doc.getObject("XY_Plane013"), [""])
sketch14.MapMode = "FlatFace"
sketch14.AttachmentOffset = App.Placement(Vector(0, 0, 3.5), App.Rotation())
sketch14.addGeometry([
    Part.LineSegment(Vector(0, -67, 0), Vector(0, -62, 0)),
    Part.ArcOfCircle(Part.Circle(Vector(0, -76, 0), Vector(0, 0, 1), 14), math.radians(90), math.radians(270)),
    Part.LineSegment(Vector(0, -90, 0), Vector(0, -85, 0)),
    Part.ArcOfCircle(Part.Circle(Vector(0, -76, 0), Vector(0, 0, 1), 9), math.radians(90), math.radians(270)),
], False)
sketch14.addConstraint([
    Sketcher.Constraint("Coincident", 0, 2, 1, 1),
    Sketcher.Constraint("Coincident", 1, 2, 2, 1),
    Sketcher.Constraint("Coincident", 2, 2, 3, 2),
    Sketcher.Constraint("Coincident", 3, 1, 0, 1),
    Sketcher.Constraint("Vertical", 0),
    Sketcher.Constraint("Vertical", 2),
    Sketcher.Constraint("Coincident", 3, 3, 1, 3),
    Sketcher.Constraint("PointOnObject", 1, 3, -2),
    Sketcher.Constraint("PointOnObject", 0, 2, -2),
    Sketcher.Constraint("PointOnObject", 1, 2, -2),
    Sketcher.Constraint("Radius", 1, 14.0),
    Sketcher.Constraint("Radius", 3, 9.0),
    Sketcher.Constraint("DistanceY", 1, 3, -1, 1, 76.2),
])
sketch14.setExpression("Constraints[10]", "Params.sketch14_radius")
sketch14.setExpression("Constraints[11]", "Params.sketch14_radius2")
pad14 = body14.newObject("PartDesign::Pad", "Pad013")
pad14.Profile = sketch14
pad14.setExpression("Length", "Params.pad14_length")
body15 = doc.addObject("PartDesign::Body", "Body014")

# Sketch on XY plane
sketch15 = body15.newObject("Sketcher::SketchObject", "Sketch014")
sketch15.AttachmentSupport = (doc.getObject("XY_Plane014"), [""])
sketch15.MapMode = "FlatFace"
sketch15.AttachmentOffset = App.Placement(Vector(0, 0, -3.5), App.Rotation())
sketch15.addGeometry([
    Part.ArcOfCircle(Part.Circle(Vector(0, -76, 0), Vector(0, 0, 1), 14), math.radians(0), math.radians(45)),
    Part.ArcOfCircle(Part.Circle(Vector(0, -76, 0), Vector(0, 0, 1), 14), math.radians(-69), math.radians(0)),
    Part.ArcOfCircle(Part.Circle(Vector(0, -76, 0), Vector(0, 0, 1), 14), math.radians(45), math.radians(291)),
    Part.Circle(Vector(0, -76, 0), Vector(0, 0, 1), 9),
], False)
sketch15.addConstraint([
    Sketcher.Constraint("Tangent", 0, 1, 1, 2),
    Sketcher.Constraint("Tangent", 1, 1, 2, 2),
    Sketcher.Constraint("Tangent", 2, 1, 0, 2),
    Sketcher.Constraint("Coincident", 3, 3, 0, 3),
    Sketcher.Constraint("PointOnObject", 0, 3, -2),
    Sketcher.Constraint("Horizontal", 3, 3, 0, 1),
    Sketcher.Constraint("Diameter", 3, 18.0),
    Sketcher.Constraint("Radius", 0, 14.0),
    Sketcher.Constraint("DistanceY", 0, 3, -1, 1, 76.2),
    Sketcher.Constraint("DistanceX", -1, 1, 1, 1, 4.913633),
    Sketcher.Constraint("DistanceX", -1, 1, 2, 1, 9.899495),
])
sketch15.setExpression("Constraints[6]", "Params.sketch15_diameter")
sketch15.setExpression("Constraints[7]", "Params.sketch15_radius")
pad15 = body15.newObject("PartDesign::Pad", "Pad014")
pad15.Profile = sketch15
pad15.setExpression("Length", "Params.pad15_length")
pad15.Reversed = True
body16 = doc.addObject("PartDesign::Body", "Body015")

# Sketch on XY plane
sketch16 = body16.newObject("Sketcher::SketchObject", "Sketch015")
sketch16.AttachmentSupport = (doc.getObject("XY_Plane015"), [""])
sketch16.MapMode = "FlatFace"
sketch16.AttachmentOffset = App.Placement(Vector(0, 0, -3.5), App.Rotation())
sketch16.addGeometry([
    Part.Circle(Vector(76, -76, 0), Vector(0, 0, 1), 14),
    Part.Circle(Vector(76, -76, 0), Vector(0, 0, 1), 9),
], False)
sketch16.addConstraint([
    Sketcher.Constraint("Coincident", 1, 3, 0, 3),
    Sketcher.Constraint("Diameter", 0, 28.0),
    Sketcher.Constraint("Diameter", 1, 18.0),
    Sketcher.Constraint("DistanceX", -1, 1, 0, 3, 76.2),
    Sketcher.Constraint("DistanceY", 0, 3, -1, 1, 76.2),
])
sketch16.setExpression("Constraints[1]", "Params.sketch16_diameter")
sketch16.setExpression("Constraints[2]", "Params.sketch16_diameter2")
pad16 = body16.newObject("PartDesign::Pad", "Pad015")
pad16.Profile = sketch16
pad16.setExpression("Length", "Params.pad16_length")
pad16.Reversed = True
body17 = doc.addObject("PartDesign::Body", "Body016")

# Sketch on XY plane
sketch17 = body17.newObject("Sketcher::SketchObject", "Sketch016")
sketch17.AttachmentSupport = (doc.getObject("XY_Plane016"), [""])
sketch17.MapMode = "FlatFace"
sketch17.AttachmentOffset = App.Placement(Vector(0, 0, -3.5), App.Rotation())
sketch17.addGeometry([
    Part.Circle(Vector(76, 0, 0), Vector(0, 0, 1), 14),
    Part.Circle(Vector(76, 0, 0), Vector(0, 0, 1), 9),
], False)
sketch17.addConstraint([
    Sketcher.Constraint("Coincident", 1, 3, 0, 3),
    Sketcher.Constraint("PointOnObject", 0, 3, -1),
    Sketcher.Constraint("Diameter", 0, 28.0),
    Sketcher.Constraint("Diameter", 1, 18.0),
    Sketcher.Constraint("DistanceX", -1, 1, 0, 3, 76.2),
])
sketch17.setExpression("Constraints[2]", "Params.sketch17_diameter")
sketch17.setExpression("Constraints[3]", "Params.sketch17_diameter2")
pad17 = body17.newObject("PartDesign::Pad", "Pad016")
pad17.Profile = sketch17
pad17.setExpression("Length", "Params.pad17_length")
pad17.Reversed = True
body18 = doc.addObject("PartDesign::Body", "Body017")

# Sketch on XY plane
sketch18 = body18.newObject("Sketcher::SketchObject", "Sketch017")
sketch18.AttachmentSupport = (doc.getObject("XY_Plane017"), [""])
sketch18.MapMode = "FlatFace"
sketch18.AttachmentOffset = App.Placement(Vector(0, 0, -3.5), App.Rotation())
sketch18.addGeometry([
    Part.Circle(Vector(0, 0, 0), Vector(0, 0, 1), 14),
    Part.Circle(Vector(0, 0, 0), Vector(0, 0, 1), 9),
], False)
sketch18.addConstraint([
    Sketcher.Constraint("Coincident", 0, 3, -1, 1),
    Sketcher.Constraint("Coincident", 1, 3, -1, 1),
    Sketcher.Constraint("Diameter", 0, 28.0),
    Sketcher.Constraint("Diameter", 1, 18.0),
])
sketch18.setExpression("Constraints[2]", "Params.sketch18_diameter")
sketch18.setExpression("Constraints[3]", "Params.sketch18_diameter2")
pad18 = body18.newObject("PartDesign::Pad", "Pad017")
pad18.Profile = sketch18
pad18.setExpression("Length", "Params.pad18_length")
pad18.Reversed = True

doc.recompute()
